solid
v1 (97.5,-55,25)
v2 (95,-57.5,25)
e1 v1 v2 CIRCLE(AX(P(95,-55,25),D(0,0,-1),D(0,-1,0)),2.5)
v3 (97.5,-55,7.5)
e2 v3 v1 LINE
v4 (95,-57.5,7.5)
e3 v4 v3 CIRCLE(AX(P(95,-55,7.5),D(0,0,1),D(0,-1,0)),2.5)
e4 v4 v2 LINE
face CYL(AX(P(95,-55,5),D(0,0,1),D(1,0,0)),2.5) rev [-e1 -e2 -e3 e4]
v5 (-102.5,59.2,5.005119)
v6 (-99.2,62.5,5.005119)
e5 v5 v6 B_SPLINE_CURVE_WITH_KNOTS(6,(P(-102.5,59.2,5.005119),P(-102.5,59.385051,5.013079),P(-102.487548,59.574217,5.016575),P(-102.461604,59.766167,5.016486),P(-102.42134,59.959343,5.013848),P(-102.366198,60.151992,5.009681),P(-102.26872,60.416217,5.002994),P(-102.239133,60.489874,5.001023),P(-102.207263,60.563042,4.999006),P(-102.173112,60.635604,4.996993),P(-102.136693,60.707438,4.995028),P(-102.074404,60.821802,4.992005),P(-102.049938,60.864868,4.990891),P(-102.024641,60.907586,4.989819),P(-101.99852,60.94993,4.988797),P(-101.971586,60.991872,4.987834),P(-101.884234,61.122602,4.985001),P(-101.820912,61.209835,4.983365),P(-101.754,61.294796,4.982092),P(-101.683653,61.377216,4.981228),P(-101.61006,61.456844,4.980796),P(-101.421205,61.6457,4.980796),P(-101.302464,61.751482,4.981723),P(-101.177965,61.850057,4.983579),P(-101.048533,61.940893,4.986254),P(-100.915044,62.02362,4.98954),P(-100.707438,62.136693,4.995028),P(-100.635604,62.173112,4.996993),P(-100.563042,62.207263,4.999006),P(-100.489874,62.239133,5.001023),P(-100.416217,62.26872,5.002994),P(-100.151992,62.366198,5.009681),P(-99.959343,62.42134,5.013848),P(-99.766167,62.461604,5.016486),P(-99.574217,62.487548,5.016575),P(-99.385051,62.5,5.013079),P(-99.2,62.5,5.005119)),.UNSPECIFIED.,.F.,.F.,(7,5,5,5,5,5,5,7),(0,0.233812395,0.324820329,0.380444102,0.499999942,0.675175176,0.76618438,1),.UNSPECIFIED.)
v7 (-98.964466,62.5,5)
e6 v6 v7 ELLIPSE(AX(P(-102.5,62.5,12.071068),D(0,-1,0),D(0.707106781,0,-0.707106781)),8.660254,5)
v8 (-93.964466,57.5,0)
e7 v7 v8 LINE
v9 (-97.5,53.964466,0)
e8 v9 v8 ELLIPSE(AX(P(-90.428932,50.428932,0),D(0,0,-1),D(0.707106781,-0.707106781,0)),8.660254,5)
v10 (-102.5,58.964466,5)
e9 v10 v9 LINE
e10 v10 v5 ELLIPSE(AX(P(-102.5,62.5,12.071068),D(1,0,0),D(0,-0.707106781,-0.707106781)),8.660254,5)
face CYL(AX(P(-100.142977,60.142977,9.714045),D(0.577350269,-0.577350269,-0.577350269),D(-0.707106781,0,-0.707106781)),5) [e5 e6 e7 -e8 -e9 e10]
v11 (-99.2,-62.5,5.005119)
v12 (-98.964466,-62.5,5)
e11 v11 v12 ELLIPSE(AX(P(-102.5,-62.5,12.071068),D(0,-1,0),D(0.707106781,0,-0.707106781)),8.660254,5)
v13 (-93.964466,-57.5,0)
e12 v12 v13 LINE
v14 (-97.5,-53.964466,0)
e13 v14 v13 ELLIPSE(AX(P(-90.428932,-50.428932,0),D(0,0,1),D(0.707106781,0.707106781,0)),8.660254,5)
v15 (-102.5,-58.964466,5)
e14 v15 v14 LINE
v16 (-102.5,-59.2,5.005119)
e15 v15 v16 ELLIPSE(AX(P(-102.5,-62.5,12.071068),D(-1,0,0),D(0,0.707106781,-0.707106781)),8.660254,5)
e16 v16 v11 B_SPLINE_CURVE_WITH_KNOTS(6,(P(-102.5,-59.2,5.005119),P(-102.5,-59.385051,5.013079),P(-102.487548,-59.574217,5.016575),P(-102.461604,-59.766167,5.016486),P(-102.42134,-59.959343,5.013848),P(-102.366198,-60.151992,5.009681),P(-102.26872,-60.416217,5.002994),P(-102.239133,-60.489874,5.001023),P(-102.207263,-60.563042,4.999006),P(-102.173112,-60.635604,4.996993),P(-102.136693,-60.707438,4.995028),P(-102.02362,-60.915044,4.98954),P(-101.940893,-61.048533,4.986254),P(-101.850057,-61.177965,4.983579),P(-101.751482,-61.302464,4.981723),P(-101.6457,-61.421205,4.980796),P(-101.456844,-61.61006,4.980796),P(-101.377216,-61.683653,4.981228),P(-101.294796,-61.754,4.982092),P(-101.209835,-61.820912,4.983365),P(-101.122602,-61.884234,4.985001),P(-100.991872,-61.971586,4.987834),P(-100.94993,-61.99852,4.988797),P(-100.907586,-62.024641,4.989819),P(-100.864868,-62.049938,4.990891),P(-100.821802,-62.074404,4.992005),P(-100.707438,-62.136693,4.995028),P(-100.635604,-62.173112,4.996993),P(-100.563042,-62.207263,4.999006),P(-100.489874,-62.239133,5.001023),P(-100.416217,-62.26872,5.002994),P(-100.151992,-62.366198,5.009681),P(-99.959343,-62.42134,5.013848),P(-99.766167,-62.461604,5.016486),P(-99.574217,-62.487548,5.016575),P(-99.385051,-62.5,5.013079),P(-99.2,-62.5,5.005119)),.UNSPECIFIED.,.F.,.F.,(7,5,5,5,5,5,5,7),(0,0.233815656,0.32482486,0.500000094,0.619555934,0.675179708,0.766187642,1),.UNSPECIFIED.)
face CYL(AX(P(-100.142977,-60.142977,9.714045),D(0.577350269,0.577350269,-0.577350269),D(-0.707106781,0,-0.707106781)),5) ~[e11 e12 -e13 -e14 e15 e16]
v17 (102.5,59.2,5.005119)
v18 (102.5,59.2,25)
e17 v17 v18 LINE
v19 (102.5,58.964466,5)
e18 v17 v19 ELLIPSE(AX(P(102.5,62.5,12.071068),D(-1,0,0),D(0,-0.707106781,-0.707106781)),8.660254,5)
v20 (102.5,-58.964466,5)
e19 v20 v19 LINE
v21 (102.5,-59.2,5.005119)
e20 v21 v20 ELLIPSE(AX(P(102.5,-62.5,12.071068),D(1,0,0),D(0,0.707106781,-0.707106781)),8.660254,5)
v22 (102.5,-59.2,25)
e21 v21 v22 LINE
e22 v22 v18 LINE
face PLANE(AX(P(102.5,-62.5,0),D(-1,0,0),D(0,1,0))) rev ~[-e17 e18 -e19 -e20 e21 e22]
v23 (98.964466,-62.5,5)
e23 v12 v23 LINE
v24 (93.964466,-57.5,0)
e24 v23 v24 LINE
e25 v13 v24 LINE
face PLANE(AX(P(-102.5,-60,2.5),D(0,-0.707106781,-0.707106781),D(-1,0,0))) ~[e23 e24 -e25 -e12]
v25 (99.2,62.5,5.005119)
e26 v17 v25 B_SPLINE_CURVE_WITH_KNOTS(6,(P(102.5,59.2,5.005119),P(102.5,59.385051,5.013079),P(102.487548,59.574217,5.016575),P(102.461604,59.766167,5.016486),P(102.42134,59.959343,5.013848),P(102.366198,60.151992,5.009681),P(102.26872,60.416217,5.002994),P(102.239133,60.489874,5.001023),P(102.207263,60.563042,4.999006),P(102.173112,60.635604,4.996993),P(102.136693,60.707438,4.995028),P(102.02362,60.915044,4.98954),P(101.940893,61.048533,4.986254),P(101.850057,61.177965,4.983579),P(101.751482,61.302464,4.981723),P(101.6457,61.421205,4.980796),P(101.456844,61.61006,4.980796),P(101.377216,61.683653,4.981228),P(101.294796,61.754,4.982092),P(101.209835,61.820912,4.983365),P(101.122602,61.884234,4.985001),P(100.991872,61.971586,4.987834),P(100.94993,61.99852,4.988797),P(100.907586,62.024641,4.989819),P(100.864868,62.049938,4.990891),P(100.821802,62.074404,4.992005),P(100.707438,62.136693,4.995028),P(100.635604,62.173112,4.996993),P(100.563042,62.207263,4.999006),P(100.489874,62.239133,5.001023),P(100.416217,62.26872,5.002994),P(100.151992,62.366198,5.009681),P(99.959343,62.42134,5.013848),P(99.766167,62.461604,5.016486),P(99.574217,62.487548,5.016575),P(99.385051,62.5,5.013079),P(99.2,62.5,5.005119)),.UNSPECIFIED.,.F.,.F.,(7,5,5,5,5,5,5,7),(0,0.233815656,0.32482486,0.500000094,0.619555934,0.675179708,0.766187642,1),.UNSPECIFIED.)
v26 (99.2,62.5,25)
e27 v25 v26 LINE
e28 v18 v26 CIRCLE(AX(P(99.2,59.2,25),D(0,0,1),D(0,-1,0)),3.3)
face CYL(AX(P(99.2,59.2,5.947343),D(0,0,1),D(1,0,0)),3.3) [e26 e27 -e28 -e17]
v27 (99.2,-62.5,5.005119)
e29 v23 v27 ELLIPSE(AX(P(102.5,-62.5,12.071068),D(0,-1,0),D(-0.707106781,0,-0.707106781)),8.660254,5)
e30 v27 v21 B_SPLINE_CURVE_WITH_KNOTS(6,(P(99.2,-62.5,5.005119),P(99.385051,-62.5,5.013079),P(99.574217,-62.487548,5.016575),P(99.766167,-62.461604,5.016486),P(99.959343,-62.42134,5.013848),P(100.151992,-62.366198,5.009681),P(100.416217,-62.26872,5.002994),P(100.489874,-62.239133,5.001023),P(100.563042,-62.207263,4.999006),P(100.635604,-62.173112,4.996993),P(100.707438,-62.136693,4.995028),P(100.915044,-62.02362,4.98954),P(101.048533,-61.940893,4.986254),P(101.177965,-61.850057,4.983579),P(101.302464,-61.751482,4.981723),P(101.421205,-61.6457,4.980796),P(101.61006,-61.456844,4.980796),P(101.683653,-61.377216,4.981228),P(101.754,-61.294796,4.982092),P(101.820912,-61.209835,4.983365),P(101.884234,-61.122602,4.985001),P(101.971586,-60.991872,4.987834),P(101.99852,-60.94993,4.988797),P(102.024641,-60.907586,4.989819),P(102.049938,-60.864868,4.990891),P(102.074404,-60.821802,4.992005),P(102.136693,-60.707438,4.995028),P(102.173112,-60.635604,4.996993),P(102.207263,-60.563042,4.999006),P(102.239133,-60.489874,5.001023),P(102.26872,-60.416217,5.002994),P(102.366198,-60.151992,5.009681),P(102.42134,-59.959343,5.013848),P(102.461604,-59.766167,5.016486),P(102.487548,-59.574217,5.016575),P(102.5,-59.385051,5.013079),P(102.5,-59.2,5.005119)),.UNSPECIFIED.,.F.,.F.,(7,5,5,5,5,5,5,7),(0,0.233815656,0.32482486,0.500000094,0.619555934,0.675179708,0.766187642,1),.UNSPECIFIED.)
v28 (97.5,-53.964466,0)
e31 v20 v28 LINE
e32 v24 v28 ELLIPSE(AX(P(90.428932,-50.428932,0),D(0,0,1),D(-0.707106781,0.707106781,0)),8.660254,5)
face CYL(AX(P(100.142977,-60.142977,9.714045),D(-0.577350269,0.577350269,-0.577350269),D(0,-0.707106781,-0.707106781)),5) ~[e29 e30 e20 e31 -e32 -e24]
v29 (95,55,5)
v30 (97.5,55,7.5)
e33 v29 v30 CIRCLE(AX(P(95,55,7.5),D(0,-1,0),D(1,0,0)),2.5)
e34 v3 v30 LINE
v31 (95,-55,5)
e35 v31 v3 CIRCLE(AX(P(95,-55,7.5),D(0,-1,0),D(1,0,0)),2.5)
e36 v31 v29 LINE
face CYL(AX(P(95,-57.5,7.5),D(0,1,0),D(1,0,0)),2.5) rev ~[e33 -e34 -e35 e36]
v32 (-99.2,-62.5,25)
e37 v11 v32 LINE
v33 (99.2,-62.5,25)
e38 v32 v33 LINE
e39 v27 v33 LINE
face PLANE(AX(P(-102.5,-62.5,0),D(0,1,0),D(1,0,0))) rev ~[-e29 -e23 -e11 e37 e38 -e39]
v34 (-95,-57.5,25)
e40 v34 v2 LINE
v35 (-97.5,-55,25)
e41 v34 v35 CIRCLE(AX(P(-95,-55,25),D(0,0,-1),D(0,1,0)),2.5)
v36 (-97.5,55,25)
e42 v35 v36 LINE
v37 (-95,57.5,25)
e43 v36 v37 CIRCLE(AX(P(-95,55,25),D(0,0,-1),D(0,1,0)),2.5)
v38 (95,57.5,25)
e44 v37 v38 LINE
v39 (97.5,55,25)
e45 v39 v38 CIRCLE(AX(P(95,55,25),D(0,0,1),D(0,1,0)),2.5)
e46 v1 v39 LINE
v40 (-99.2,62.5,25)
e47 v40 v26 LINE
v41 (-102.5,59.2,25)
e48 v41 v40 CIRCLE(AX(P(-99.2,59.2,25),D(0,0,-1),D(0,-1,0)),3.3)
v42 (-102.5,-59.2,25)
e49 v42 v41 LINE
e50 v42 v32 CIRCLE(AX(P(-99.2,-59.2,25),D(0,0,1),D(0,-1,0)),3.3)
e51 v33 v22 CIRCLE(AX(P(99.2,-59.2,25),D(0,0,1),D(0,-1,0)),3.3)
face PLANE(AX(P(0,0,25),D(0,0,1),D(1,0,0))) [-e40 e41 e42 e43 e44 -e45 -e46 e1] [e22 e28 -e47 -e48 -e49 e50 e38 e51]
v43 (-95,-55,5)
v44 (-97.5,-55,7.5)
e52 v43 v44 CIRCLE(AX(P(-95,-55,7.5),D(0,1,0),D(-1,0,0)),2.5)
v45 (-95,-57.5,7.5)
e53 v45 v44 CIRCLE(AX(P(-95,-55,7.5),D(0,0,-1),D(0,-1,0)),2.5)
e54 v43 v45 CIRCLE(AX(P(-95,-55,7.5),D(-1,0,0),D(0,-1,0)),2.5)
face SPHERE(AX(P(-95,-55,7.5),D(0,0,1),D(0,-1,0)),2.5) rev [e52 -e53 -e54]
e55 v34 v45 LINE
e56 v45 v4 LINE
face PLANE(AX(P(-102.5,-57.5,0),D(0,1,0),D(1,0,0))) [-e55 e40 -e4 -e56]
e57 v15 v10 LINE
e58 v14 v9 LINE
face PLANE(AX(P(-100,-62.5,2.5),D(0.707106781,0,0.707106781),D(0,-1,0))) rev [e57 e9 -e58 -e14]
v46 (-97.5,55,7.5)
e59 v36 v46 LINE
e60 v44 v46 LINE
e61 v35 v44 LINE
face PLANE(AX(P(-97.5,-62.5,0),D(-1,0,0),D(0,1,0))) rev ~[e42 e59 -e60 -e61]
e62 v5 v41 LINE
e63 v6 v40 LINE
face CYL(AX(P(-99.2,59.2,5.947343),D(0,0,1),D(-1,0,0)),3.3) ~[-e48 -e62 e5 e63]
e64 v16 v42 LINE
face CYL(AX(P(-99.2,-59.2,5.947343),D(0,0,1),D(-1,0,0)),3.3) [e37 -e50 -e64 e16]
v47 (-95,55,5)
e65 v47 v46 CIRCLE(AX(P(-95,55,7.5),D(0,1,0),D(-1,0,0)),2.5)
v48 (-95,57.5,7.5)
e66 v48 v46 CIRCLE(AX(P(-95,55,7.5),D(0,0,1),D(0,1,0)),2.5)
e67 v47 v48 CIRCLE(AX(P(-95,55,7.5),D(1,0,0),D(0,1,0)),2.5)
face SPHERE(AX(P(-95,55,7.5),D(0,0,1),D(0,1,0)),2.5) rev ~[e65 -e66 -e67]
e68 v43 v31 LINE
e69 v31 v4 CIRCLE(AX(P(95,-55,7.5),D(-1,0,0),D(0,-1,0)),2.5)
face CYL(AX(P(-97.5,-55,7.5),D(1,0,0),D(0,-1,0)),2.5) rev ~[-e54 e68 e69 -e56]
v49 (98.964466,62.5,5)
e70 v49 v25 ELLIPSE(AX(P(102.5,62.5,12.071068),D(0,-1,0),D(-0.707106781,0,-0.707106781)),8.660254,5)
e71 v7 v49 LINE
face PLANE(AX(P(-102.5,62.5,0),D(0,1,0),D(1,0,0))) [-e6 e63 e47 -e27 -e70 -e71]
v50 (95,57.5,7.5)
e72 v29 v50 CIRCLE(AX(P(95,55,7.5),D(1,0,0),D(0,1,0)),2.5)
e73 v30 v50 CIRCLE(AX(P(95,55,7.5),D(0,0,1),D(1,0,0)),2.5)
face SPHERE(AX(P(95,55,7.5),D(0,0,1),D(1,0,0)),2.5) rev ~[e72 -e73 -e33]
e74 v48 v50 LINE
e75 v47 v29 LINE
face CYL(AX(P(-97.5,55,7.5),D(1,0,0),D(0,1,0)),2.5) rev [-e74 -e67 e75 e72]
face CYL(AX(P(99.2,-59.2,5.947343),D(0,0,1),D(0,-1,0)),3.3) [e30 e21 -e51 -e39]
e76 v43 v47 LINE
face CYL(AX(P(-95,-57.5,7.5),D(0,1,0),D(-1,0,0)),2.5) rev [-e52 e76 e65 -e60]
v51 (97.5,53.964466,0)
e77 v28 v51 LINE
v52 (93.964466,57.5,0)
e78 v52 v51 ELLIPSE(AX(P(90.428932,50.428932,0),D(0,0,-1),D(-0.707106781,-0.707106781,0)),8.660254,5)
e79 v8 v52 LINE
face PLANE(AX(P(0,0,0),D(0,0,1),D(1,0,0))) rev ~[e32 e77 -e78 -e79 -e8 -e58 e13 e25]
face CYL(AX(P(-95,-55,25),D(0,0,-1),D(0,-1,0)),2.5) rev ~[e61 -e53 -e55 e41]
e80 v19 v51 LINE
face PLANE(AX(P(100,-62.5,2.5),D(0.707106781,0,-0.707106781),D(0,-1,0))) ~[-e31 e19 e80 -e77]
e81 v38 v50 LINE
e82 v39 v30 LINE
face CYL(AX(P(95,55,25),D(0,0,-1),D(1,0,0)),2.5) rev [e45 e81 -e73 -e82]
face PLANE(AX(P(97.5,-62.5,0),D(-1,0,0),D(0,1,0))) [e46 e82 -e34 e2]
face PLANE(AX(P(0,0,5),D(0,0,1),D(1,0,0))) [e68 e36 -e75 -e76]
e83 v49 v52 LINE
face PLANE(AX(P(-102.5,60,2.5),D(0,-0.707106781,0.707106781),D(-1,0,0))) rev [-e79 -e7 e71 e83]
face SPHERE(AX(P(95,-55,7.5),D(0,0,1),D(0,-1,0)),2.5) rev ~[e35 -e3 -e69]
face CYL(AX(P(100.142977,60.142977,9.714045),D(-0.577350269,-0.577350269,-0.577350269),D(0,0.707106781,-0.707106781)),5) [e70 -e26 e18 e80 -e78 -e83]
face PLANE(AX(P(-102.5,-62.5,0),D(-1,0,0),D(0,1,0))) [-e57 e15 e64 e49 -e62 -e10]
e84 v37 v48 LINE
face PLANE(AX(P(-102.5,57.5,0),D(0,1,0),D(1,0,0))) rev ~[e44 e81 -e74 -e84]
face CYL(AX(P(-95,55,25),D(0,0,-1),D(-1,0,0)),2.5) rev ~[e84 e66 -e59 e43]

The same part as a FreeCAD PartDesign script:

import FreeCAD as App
import Part
import Sketcher


def edges_at(feature, points):
    """Names of the edges that pass closest to the given points."""
    edges = feature.Shape.Edges
    near = lambda p: min(range(len(edges)), key=lambda i: edges[i].distToShape(Part.Vertex(*p))[0])
    return sorted({f"Edge{near(p) + 1}" for p in points})


def faces_at(feature, points):
    """Names of the faces that lie closest to the given points."""
    faces = feature.Shape.Faces
    near = lambda p: min(range(len(faces)), key=lambda i: faces[i].distToShape(Part.Vertex(*p))[0])
    return sorted({f"Face{near(p) + 1}" for p in points})


def add_polygon(sketch, points):
    """Adds a closed chain of lines whose ends are joined by coincident constraints."""
    first, n = sketch.GeometryCount, len(points)
    for a, b in zip(points, points[1:] + points[:1]):
        sketch.addGeometry(Part.LineSegment(App.Vector(*a, 0), App.Vector(*b, 0)), False)
    for i in range(n):
        sketch.addConstraint(Sketcher.Constraint("Coincident", first + i, 2, first + (i + 1) % n, 1))

doc = App.newDocument("Part")
body = doc.addObject("PartDesign::Body", "Body")

sketch1 = body.newObject("Sketcher::SketchObject", "Sketch")
sketch1.AttachmentSupport = (doc.getObject("XY_Plane"), [""])
sketch1.MapMode = "FlatFace"
add_polygon(sketch1, [(-102, 62), (-102, -62), (102, -62), (102, 62)])
sketch1.addConstraint([
    Sketcher.Constraint("Vertical", 0),
    Sketcher.Constraint("Horizontal", 1),
    Sketcher.Constraint("Vertical", 2),
    Sketcher.Constraint("Horizontal", 3),
    Sketcher.Constraint("Symmetric", 0, 2, 2, 2, -1, 1),
    Sketcher.Constraint("DistanceX", 1, 1, 1, 2, 205.0),
    Sketcher.Constraint("DistanceY", 0, 2, 0, 1, 125.0),
])
pad1 = body.newObject("PartDesign::Pad", "Pad")
pad1.Profile = sketch1
pad1.Length = 25
doc.recompute()

thickness = body.newObject("PartDesign::Thickness", "Thickness")
thickness.Base = (pad1, faces_at(pad1, [(0, 0, 25)]))
thickness.Value = 5
thickness.Reversed = True
thickness.Join = "Arc"
doc.recompute()

chamfer = body.newObject("PartDesign::Chamfer", "Chamfer")
chamfer.Base = (thickness, edges_at(thickness, [
    (0, 62.5, 0),
    (-102.5, 0, 0),
    (0, -62.5, 0),
    (102.5, 0, 0),
]))
chamfer.Size = 5
doc.recompute()

fillet = body.newObject("PartDesign::Fillet", "Fillet")
fillet.Base = (chamfer, edges_at(chamfer, [
    (100, -60, 2.5),
    (-100, 60, 2.5),
    (-100, -60, 2.5),
    (100, 60, 2.5),
]))
fillet.Radius = 5
doc.recompute()

fillet2 = body.newObject("PartDesign::Fillet", "Fillet001")
fillet2.Base = (fillet, edges_at(fillet, [
    (-97.5, -57.5, 15),
    (-97.5, 57.5, 15),
    (97.5, 57.5, 15),
    (97.5, -57.5, 15),
    (0, -57.5, 5),
    (97.5, 0, 5),
    (0, 57.5, 5),
    (-97.5, 0, 5),
]))
fillet2.Radius = 2.5
doc.recompute()

fillet3 = body.newObject("PartDesign::Fillet", "Fillet002")
fillet3.Base = (fillet2, edges_at(fillet2, [
    (102.5, 62.5, 15.474),
    (102.5, -62.5, 15.474),
    (-102.5, -62.5, 15.474),
    (-102.5, 62.5, 15.474),
]))
fillet3.Radius = 3.3

doc.recompute()
